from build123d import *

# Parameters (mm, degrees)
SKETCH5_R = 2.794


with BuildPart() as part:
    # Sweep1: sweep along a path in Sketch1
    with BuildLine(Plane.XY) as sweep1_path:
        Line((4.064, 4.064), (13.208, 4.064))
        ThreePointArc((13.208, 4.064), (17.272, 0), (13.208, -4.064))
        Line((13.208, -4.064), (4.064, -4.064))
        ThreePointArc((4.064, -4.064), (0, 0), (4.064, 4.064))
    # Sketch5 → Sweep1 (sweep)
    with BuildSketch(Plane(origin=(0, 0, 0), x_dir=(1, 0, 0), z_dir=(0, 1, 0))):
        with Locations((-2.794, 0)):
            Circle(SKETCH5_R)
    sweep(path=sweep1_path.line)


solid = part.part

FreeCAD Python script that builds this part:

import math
import FreeCAD as App
import Part
import Sketcher
from FreeCAD import Vector
Q = App.Units.Quantity

doc = App.newDocument("Part")
body = doc.addObject("PartDesign::Body", "Body")

sketch1 = body.newObject("Sketcher::SketchObject", "Sketch")
sketch1.AttachmentSupport = (doc.getObject("XZ_Plane"), [""])
sketch1.MapMode = "FlatFace"
sketch1.addGeometry(Part.Circle(Vector(-2.8, 0, 0), Vector(0, 0, 1), 2.8), False)
sketch1.addConstraint([
    Sketcher.Constraint("PointOnObject", 0, 3, -1),
    Sketcher.Constraint("Diameter", 0, Q("0.22 in")),
    Sketcher.Constraint("DistanceX", 0, 3, -1, 1, Q("0.11 in")),
])

sketch2 = body.newObject("Sketcher::SketchObject", "Sketch001")
sketch2.AttachmentSupport = (doc.getObject("XY_Plane"), [""])
sketch2.MapMode = "FlatFace"
sketch2.addGeometry([
    Part.LineSegment(Vector(4.1, 4.1, 0), Vector(13.2, 4.1, 0)),
    Part.ArcOfCircle(Part.Circle(Vector(13.2, 0, 0), Vector(0, 0, 1), 4.1), math.radians(-90), math.radians(90)),
    Part.LineSegment(Vector(13.2, -4.1, 0), Vector(4.1, -4.1, 0)),
    Part.ArcOfCircle(Part.Circle(Vector(4.1, 0, 0), Vector(0, 0, 1), 4.1), math.radians(90), math.radians(270)),
], False)
sketch2.addConstraint([
    Sketcher.Constraint("Tangent", 0, 2, 1, 2),
    Sketcher.Constraint("Tangent", 1, 1, 2, 1),
    Sketcher.Constraint("Tangent", 2, 2, 3, 2),
    Sketcher.Constraint("Tangent", 3, 1, 0, 1),
    Sketcher.Constraint("Horizontal", 0),
    Sketcher.Constraint("Horizontal", 2),
    Sketcher.Constraint("PointOnObject", 1, 3, -1),
    Sketcher.Constraint("Radius", 1, Q("0.16 in")),
    Sketcher.Constraint("DistanceX", 0, 1, 0, 2, Q("0.36 in")),
    Sketcher.Constraint("DistanceX", -1, 1, 1, 3, Q("0.52 in")),
])
doc.recompute()

additivepipe = body.newObject("PartDesign::AdditivePipe", "AdditivePipe")
additivepipe.Profile = sketch1
additivepipe.Spine = (sketch2, ["Edge1", "Edge2", "Edge3", "Edge4"])

doc.recompute()
